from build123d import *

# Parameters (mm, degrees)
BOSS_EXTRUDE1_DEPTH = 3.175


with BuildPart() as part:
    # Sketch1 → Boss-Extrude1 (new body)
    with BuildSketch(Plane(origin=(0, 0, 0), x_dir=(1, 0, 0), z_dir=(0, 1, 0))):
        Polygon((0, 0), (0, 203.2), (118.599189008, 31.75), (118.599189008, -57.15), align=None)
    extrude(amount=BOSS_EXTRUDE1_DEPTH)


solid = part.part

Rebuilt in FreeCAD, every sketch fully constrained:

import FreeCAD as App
import Part
import Sketcher
Q = App.Units.Quantity


def add_polygon(sketch, points):
    """Adds a closed chain of lines whose ends are joined by coincident constraints."""
    first, n = sketch.GeometryCount, len(points)
    for a, b in zip(points, points[1:] + points[:1]):
        sketch.addGeometry(Part.LineSegment(App.Vector(*a, 0), App.Vector(*b, 0)), False)
    for i in range(n):
        sketch.addConstraint(Sketcher.Constraint("Coincident", first + i, 2, first + (i + 1) % n, 1))

doc = App.newDocument("Part")
body = doc.addObject("PartDesign::Body", "Body")

sketch1 = body.newObject("Sketcher::SketchObject", "Sketch")
sketch1.AttachmentSupport = (doc.getObject("XZ_Plane"), [""])
sketch1.MapMode = "FlatFace"
add_polygon(sketch1, [(0, -203), (0, 0), (119, 57), (119, -32)])
sketch1.addConstraint([
    Sketcher.Constraint("Vertical", 0),
    Sketcher.Constraint("Vertical", 2),
    Sketcher.Constraint("Coincident", 0, 2, -1, 1),
    Sketcher.Constraint("DistanceY", 0, 1, 0, 2, Q("8 in")),
    Sketcher.Constraint("DistanceY", 2, 2, 2, 1, Q("3.5 in")),
    Sketcher.Constraint("DistanceY", -1, 1, 1, 2, Q("2.25 in")),
    Sketcher.Constraint("Distance", 3, 208.472708),
])
pad1 = body.newObject("PartDesign::Pad", "Pad")
pad1.Profile = sketch1
pad1.Length = Q("0.125 in")
pad1.Reversed = True

doc.recompute()
